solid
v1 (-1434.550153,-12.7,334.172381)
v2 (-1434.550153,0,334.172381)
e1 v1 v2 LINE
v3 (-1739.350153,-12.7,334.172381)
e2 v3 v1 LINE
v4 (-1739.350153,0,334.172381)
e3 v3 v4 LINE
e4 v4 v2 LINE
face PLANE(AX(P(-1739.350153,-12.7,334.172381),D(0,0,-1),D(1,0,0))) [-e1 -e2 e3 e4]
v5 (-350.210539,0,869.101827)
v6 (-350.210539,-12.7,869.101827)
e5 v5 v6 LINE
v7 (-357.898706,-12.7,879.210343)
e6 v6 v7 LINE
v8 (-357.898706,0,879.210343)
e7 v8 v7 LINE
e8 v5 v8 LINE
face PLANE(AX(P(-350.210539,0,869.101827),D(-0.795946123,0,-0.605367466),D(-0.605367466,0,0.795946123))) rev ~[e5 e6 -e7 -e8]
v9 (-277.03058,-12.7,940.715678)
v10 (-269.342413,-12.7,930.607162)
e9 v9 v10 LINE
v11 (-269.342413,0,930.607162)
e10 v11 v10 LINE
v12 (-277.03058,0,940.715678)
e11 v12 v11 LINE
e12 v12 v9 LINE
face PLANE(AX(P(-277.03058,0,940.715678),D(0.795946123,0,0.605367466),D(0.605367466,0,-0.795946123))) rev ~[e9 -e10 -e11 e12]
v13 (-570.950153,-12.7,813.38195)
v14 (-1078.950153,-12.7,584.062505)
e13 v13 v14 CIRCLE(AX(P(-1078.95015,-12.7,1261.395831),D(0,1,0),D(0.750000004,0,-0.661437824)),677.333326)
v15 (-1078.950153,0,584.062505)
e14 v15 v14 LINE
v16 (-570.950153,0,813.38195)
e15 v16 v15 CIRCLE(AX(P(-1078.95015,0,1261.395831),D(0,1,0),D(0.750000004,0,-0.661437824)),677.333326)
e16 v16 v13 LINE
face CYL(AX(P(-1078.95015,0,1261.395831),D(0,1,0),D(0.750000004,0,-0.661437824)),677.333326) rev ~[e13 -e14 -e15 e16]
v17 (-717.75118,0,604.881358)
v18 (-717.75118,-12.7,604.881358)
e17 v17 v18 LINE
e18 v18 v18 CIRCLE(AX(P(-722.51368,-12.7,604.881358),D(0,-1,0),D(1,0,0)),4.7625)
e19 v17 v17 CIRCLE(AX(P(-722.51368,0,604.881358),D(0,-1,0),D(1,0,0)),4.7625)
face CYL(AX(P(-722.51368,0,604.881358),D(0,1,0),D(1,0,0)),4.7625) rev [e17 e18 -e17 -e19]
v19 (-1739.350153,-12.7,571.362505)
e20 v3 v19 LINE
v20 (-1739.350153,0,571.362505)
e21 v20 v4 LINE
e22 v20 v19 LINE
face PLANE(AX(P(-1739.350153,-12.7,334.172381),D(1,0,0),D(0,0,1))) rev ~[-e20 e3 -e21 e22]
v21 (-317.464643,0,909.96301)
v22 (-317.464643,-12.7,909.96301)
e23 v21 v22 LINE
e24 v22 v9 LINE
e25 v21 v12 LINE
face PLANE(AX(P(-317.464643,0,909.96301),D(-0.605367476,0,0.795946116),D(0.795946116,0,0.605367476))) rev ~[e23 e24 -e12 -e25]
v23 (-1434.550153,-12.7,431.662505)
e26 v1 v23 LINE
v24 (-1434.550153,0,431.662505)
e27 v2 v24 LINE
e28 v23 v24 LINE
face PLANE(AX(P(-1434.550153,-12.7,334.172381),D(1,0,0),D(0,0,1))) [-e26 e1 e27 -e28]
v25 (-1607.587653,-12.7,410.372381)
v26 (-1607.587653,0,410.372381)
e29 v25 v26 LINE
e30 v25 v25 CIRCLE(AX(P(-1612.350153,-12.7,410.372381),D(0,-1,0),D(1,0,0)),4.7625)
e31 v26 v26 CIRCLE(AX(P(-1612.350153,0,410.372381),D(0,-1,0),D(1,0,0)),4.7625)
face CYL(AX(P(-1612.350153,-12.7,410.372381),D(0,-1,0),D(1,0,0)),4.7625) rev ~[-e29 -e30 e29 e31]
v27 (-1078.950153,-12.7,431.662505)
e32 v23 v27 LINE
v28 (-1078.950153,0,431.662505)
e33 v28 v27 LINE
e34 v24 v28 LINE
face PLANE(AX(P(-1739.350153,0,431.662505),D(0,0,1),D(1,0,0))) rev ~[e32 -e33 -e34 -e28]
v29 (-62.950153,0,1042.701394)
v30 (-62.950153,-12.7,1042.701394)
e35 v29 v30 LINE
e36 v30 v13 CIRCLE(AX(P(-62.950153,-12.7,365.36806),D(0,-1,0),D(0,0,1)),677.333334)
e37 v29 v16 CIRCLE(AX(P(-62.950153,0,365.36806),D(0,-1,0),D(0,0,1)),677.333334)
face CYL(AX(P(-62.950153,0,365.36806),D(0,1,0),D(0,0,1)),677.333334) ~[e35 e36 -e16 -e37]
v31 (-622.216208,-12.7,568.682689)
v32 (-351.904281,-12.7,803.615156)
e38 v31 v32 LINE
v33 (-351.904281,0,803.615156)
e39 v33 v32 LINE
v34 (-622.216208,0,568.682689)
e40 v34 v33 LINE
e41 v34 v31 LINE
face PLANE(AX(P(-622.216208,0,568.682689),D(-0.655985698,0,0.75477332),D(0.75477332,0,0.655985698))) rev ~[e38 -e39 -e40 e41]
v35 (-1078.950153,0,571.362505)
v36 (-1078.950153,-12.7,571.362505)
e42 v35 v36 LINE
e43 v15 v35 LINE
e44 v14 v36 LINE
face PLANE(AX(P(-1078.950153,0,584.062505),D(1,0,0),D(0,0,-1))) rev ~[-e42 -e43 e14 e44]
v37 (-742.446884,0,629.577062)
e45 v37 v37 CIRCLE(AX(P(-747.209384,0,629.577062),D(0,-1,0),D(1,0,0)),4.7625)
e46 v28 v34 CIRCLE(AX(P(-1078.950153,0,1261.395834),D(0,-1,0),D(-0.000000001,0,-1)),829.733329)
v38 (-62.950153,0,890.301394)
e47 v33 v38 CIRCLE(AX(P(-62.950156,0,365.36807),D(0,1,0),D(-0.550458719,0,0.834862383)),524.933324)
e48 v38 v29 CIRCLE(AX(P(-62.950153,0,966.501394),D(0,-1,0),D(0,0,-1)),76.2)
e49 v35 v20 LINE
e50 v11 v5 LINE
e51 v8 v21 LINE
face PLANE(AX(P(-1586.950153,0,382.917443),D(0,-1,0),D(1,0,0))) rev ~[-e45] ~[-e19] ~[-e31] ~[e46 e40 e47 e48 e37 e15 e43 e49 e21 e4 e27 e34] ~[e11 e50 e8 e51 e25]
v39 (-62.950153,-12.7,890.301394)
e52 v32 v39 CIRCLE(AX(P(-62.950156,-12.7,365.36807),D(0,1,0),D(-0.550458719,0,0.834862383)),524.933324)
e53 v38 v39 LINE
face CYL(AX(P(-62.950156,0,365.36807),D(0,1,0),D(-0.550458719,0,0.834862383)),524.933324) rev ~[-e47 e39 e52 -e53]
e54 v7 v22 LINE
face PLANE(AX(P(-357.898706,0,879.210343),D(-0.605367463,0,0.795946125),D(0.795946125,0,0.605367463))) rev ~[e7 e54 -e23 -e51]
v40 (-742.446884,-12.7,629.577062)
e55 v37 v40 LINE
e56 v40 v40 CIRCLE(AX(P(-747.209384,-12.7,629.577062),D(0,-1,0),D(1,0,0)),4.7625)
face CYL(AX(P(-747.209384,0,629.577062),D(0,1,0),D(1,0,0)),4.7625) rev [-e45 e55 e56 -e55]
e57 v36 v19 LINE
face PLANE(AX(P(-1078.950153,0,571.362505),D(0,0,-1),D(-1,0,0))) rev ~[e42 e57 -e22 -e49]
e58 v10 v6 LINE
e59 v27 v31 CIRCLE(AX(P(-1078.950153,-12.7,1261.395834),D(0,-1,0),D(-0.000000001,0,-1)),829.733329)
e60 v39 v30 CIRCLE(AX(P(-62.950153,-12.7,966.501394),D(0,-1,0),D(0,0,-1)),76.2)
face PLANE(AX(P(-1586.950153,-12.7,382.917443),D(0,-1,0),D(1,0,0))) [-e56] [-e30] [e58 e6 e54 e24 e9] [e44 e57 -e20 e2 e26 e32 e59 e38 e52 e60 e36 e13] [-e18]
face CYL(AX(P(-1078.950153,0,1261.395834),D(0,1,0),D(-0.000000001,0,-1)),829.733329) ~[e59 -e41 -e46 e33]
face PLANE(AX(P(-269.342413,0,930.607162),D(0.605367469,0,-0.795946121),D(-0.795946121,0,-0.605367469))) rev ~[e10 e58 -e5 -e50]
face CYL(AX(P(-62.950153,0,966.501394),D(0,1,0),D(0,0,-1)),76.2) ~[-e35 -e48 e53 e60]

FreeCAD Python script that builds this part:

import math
import FreeCAD as App
import Part
import Sketcher
Q = App.Units.Quantity

doc = App.newDocument("Part")
body = doc.addObject("PartDesign::Body", "Body")

sketch1 = doc.addObject("Sketcher::SketchObject", "Sketch")
body.addObject(sketch1)
sketch1.AttachmentSupport = (doc.XZ_Plane, [""])
sketch1.MapMode = "FlatFace"
sketch1.addGeometry([
    Part.ArcOfCircle(Part.Circle(App.Vector(-1079, 1261.4, 0), App.Vector(0, 0, 1), 677.3), math.radians(-90), math.radians(-41)),
    Part.LineSegment(App.Vector(-1079, 584.1, 0), App.Vector(-1079, 571.4, 0)),
    Part.LineSegment(App.Vector(-1079, 571.4, 0), App.Vector(-1739.4, 571.4, 0)),
    Part.LineSegment(App.Vector(-1739.4, 571.4, 0), App.Vector(-1739.4, 431.7, 0)),
    Part.LineSegment(App.Vector(-1739.4, 431.7, 0), App.Vector(-1079, 431.7, 0)),
    Part.ArcOfCircle(Part.Circle(App.Vector(-1079, 1261.4, 0), App.Vector(0, 0, 1), 829.7), math.radians(-90), math.radians(-57)),
    Part.LineSegment(App.Vector(-622.2, 568.7, 0), App.Vector(-351.9, 803.6, 0)),
    Part.ArcOfCircle(Part.Circle(App.Vector(-63, 365.4, 0), App.Vector(0, 0, 1), 524.9), math.radians(90), math.radians(123)),
    Part.ArcOfCircle(Part.Circle(App.Vector(-63, 966.5, 0), App.Vector(0, 0, 1), 76.2), math.radians(-90), math.radians(90)),
    Part.ArcOfCircle(Part.Circle(App.Vector(-63, 365.4, 0), App.Vector(0, 0, 1), 677.3), math.radians(90), math.radians(139)),
    Part.Circle(App.Vector(-722.5, 604.9, 0), App.Vector(0, 0, 1), 4.8),
    Part.Circle(App.Vector(-747.2, 629.6, 0), App.Vector(0, 0, 1), 4.8),
    Part.LineSegment(App.Vector(-350.2, 869.1, 0), App.Vector(-357.9, 879.2, 0)),
    Part.LineSegment(App.Vector(-357.9, 879.2, 0), App.Vector(-317.5, 910, 0)),
    Part.LineSegment(App.Vector(-317.5, 910, 0), App.Vector(-277, 940.7, 0)),
    Part.LineSegment(App.Vector(-277, 940.7, 0), App.Vector(-269.3, 930.6, 0)),
    Part.LineSegment(App.Vector(-269.3, 930.6, 0), App.Vector(-350.2, 869.1, 0)),
], False)
sketch1.addConstraint([
    Sketcher.Constraint("Coincident", 0, 1, 1, 1),
    Sketcher.Constraint("Coincident", 1, 2, 2, 1),
    Sketcher.Constraint("Coincident", 2, 2, 3, 1),
    Sketcher.Constraint("Coincident", 3, 2, 4, 1),
    Sketcher.Constraint("Tangent", 4, 2, 5, 1),
    Sketcher.Constraint("Coincident", 5, 2, 6, 1),
    Sketcher.Constraint("Coincident", 6, 2, 7, 2),
    Sketcher.Constraint("Tangent", 7, 1, 8, 1),
    Sketcher.Constraint("Tangent", 8, 2, 9, 1),
    Sketcher.Constraint("Tangent", 9, 2, 0, 2),
    Sketcher.Constraint("Coincident", 12, 2, 13, 1),
    Sketcher.Constraint("Coincident", 13, 2, 14, 1),
    Sketcher.Constraint("Coincident", 14, 2, 15, 1),
    Sketcher.Constraint("Coincident", 15, 2, 16, 1),
    Sketcher.Constraint("Coincident", 16, 2, 12, 1),
    Sketcher.Constraint("Vertical", 1),
    Sketcher.Constraint("Horizontal", 2),
    Sketcher.Constraint("Vertical", 3),
    Sketcher.Constraint("Horizontal", 4),
    Sketcher.Constraint("Coincident", 5, 3, 0, 3),
    Sketcher.Constraint("Equal", 10, 11),
    Sketcher.Constraint("Perpendicular", 12, 13),
    Sketcher.Constraint("Parallel", 13, 14),
    Sketcher.Constraint("Perpendicular", 14, 15),
    Sketcher.Constraint("Perpendicular", 15, 16),
    Sketcher.Constraint("Vertical", 8, 3, 9, 3),
    Sketcher.Constraint("Vertical", 1, 2, 4, 2),
    Sketcher.Constraint("Equal", 13, 14),
    Sketcher.Constraint("Radius", 8, Q("3 in")),
    Sketcher.Constraint("DistanceX", 2, 2, 2, 1, Q("26 in")),
    Sketcher.Constraint("Distance", 13, Q("2 in")),
    Sketcher.Constraint("Diameter", 10, Q("0.375 in")),
    Sketcher.Constraint("DistanceY", 1, 2, 1, 1, Q("0.5 in")),
    Sketcher.Constraint("DistanceY", 3, 2, 3, 1, Q("5.5 in")),
    Sketcher.Constraint("DistanceX", 5, 3, 7, 3, Q("39.9999999 in")),
    Sketcher.Constraint("DistanceX", 0, 3, 8, 3, Q("39.9999999 in")),
    Sketcher.Constraint("Distance", 12, Q("0.5 in")),
    Sketcher.Constraint("Radius", 5, 829.733329),
    Sketcher.Constraint("Radius", 7, 524.933324),
    Sketcher.Constraint("Radius", 9, 677.333334),
    Sketcher.Constraint("DistanceY", 9, 3, 10, 3, 239.513298),
    Sketcher.Constraint("DistanceX", 10, 3, 6, 2, 370.609399),
    Sketcher.Constraint("DistanceX", 6, 2, 14, 2, 74.873701),
    Sketcher.Constraint("Distance", 6, 358.136569),
    Sketcher.Constraint("DistanceX", 0, 3, -1, 1, 1078.95015),
    Sketcher.Constraint("DistanceY", -1, 1, 0, 3, 1261.395831),
    Sketcher.Constraint("DistanceX", 10, 3, -1, 1, 722.51368),
    Sketcher.Constraint("DistanceY", -1, 1, 11, 3, 629.577062),
    Sketcher.Constraint("DistanceY", -1, 1, 13, 2, 909.96301),
    Sketcher.Constraint("DistanceY", -1, 1, 14, 2, 940.715678),
    Sketcher.Constraint("DistanceX", 5, 3, 11, 3, 331.740769),
])
pad1 = doc.addObject("PartDesign::Pad", "Pad")
body.addObject(pad1)
pad1.Profile = sketch1
pad1.Length = Q("0.5 in")

sketch2 = doc.addObject("Sketcher::SketchObject", "Sketch001")
body.addObject(sketch2)
sketch2.AttachmentSupport = (doc.XZ_Plane, [""])
sketch2.MapMode = "FlatFace"
sketch2.AttachmentOffset = App.Placement(App.Vector(0, 0, 0.5 * 25.4), App.Rotation())
sketch2.addGeometry([
    Part.LineSegment(App.Vector(-1739.4, 431.7, 0), App.Vector(-1739.4, 334.2, 0)),
    Part.LineSegment(App.Vector(-1739.4, 334.2, 0), App.Vector(-1434.6, 334.2, 0)),
    Part.LineSegment(App.Vector(-1434.6, 334.2, 0), App.Vector(-1434.6, 431.7, 0)),
    Part.LineSegment(App.Vector(-1434.6, 431.7, 0), App.Vector(-1739.4, 431.7, 0)),
    Part.Circle(App.Vector(-1612.4, 410.4, 0), App.Vector(0, 0, 1), 4.8),
], False)
sketch2.addConstraint([
    Sketcher.Constraint("Coincident", 0, 2, 1, 1),
    Sketcher.Constraint("Coincident", 1, 2, 2, 1),
    Sketcher.Constraint("Coincident", 2, 2, 3, 1),
    Sketcher.Constraint("Coincident", 3, 2, 0, 1),
    Sketcher.Constraint("Vertical", 0),
    Sketcher.Constraint("Horizontal", 1),
    Sketcher.Constraint("Vertical", 2),
    Sketcher.Constraint("Horizontal", 3),
    Sketcher.Constraint("DistanceX", 1, 1, 1, 2, Q("12 in")),
    Sketcher.Constraint("Diameter", 4, Q("0.375 in")),
    Sketcher.Constraint("DistanceX", 0, 2, 4, 3, Q("5 in")),
    Sketcher.Constraint("DistanceY", 0, 2, 4, 3, Q("3 in")),
    Sketcher.Constraint("DistanceY", 0, 2, 0, 1, 97.490124),
    Sketcher.Constraint("DistanceY", -1, 1, 4, 3, 410.372381),
    Sketcher.Constraint("DistanceX", 4, 3, -1, 1, 1612.350153),
])
pad2 = doc.addObject("PartDesign::Pad", "Pad001")
body.addObject(pad2)
pad2.Profile = sketch2
pad2.Length = Q("0.5 in")
pad2.Reversed = True

doc.recompute()
